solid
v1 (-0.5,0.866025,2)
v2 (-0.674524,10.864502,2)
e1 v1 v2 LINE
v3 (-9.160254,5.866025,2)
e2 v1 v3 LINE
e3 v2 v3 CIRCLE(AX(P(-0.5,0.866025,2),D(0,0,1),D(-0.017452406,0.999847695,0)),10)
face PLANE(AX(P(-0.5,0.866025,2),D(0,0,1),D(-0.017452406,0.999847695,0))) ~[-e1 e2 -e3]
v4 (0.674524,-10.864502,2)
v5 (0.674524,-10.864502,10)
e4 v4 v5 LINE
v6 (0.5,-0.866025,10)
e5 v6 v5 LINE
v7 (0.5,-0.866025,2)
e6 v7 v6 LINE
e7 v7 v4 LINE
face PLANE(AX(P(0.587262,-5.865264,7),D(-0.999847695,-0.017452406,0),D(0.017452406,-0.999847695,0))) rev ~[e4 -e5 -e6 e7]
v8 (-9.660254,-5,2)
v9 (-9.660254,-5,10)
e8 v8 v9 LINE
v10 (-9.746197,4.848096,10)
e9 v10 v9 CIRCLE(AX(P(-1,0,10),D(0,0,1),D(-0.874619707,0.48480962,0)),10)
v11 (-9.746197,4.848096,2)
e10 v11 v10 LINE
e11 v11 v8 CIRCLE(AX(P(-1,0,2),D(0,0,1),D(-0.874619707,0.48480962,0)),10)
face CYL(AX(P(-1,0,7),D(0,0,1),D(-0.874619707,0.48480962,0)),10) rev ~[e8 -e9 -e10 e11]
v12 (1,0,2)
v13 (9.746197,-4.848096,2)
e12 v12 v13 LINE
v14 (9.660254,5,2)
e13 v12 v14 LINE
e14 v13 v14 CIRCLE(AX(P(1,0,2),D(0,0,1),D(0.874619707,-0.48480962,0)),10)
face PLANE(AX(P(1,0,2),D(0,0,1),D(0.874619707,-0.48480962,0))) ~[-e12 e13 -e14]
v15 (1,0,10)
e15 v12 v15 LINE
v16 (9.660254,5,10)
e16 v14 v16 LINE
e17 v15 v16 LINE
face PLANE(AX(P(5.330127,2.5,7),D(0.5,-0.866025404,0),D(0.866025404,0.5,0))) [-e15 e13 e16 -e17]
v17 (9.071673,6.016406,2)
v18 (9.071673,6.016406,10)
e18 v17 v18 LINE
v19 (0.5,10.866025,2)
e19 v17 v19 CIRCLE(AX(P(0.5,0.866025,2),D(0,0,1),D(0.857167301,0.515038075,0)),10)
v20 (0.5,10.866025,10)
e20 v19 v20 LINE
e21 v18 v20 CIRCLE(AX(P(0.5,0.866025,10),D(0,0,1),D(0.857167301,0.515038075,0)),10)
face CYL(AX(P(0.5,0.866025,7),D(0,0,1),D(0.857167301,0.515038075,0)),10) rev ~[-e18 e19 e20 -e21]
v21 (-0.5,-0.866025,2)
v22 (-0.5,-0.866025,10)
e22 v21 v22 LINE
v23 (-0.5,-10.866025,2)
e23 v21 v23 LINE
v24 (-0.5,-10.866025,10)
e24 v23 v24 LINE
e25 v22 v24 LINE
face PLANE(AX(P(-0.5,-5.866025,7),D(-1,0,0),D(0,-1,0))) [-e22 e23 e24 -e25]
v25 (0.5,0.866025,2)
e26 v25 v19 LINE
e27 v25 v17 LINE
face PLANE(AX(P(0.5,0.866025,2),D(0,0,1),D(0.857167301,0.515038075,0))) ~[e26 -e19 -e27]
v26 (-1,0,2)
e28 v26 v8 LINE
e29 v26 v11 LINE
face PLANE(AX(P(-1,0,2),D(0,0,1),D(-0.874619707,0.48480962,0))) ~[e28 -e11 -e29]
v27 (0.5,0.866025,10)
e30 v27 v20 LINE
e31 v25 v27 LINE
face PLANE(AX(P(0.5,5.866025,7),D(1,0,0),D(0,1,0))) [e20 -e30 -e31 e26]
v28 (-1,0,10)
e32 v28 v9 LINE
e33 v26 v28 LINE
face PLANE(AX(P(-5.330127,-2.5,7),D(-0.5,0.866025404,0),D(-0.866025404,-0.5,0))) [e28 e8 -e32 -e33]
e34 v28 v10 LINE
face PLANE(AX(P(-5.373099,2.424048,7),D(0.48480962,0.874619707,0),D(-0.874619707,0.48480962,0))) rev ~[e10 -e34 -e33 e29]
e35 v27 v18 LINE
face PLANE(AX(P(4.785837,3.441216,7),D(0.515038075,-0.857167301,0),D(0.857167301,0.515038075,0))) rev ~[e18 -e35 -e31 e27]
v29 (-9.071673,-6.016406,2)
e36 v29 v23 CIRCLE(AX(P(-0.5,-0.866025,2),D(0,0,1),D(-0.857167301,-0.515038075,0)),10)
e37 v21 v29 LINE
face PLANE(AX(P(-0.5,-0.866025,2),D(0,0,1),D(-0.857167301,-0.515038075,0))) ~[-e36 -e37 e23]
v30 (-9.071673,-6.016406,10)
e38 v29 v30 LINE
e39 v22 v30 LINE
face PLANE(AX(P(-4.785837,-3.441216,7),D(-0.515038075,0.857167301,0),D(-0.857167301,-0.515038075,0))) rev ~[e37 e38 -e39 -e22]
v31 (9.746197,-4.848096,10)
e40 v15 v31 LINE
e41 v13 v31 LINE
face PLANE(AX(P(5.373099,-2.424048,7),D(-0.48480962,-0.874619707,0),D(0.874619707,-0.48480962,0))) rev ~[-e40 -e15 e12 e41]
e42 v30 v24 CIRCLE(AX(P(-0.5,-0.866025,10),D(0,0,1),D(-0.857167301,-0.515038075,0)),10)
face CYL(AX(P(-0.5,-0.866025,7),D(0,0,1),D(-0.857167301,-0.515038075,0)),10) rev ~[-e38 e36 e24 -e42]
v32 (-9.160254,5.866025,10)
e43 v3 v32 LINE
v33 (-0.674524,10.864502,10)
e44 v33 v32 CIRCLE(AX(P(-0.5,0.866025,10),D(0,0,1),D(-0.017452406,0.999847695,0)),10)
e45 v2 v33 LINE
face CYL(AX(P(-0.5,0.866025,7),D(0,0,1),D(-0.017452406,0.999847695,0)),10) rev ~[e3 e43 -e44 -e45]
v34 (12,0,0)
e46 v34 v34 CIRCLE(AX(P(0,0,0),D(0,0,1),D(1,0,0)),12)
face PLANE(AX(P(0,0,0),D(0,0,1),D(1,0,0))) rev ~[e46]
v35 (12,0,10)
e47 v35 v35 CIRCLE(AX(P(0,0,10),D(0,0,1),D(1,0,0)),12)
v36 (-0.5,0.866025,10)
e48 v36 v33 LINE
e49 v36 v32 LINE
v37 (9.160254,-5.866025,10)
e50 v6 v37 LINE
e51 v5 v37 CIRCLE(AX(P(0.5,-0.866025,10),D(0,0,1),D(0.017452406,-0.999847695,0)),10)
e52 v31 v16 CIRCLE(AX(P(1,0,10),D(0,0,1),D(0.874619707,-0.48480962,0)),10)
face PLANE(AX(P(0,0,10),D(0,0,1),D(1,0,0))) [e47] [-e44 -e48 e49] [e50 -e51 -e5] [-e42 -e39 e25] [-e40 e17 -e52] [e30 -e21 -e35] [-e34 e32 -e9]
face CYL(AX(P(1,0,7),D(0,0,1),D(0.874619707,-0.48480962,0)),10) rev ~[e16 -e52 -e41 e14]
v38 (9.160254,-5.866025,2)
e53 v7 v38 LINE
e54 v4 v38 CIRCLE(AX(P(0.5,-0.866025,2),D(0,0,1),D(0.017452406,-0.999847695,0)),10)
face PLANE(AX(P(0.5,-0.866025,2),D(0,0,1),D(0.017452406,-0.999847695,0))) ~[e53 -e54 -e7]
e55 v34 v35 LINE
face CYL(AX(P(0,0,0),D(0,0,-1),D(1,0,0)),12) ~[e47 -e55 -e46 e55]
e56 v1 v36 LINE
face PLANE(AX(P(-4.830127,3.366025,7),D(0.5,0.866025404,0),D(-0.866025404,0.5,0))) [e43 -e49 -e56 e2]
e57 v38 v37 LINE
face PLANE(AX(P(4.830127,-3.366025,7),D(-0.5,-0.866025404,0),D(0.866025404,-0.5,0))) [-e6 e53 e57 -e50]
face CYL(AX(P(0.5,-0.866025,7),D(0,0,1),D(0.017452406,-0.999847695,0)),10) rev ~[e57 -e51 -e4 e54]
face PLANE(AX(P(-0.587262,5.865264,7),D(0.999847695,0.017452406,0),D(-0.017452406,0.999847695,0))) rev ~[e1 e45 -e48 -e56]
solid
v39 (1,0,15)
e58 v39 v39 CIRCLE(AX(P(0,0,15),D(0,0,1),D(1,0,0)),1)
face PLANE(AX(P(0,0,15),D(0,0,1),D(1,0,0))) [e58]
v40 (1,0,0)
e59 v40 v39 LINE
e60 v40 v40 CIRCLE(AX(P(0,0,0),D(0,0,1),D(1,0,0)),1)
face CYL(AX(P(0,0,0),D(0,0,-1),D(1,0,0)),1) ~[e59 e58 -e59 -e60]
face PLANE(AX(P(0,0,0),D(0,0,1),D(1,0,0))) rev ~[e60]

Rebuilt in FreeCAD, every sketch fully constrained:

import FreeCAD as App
import Part
import Sketcher

V = App.Vector
Q = App.Units.Quantity

doc = App.newDocument("Part")
body = doc.addObject("PartDesign::Body", "Body")

sketch1 = body.newObject("Sketcher::SketchObject", "Sketch")
sketch1.AttachmentSupport = (doc.getObject("XY_Plane"), [""])
sketch1.MapMode = "FlatFace"
sketch1.addGeometry(Part.Circle(V(0, 0, 0), V(0, 0, 1), 1), False)
sketch1.addConstraint([
    Sketcher.Constraint("Coincident", 0, 3, -1, 1),
    Sketcher.Constraint("Diameter", 0, Q("2 mm")),
])
pad1 = body.newObject("PartDesign::Pad", "Pad")
pad1.Profile = sketch1
pad1.Length = 15
body2 = doc.addObject("PartDesign::Body", "Body001")

sketch2 = body2.newObject("Sketcher::SketchObject", "Sketch001")
sketch2.AttachmentSupport = (doc.getObject("XZ_Plane001"), [""])
sketch2.MapMode = "FlatFace"
sketch2.addGeometry([
    Part.LineSegment(V(0, 10, 0), V(0, 0, 0)),
    Part.LineSegment(V(0, 0, 0), V(10, 0, 0)),
    Part.LineSegment(V(10, 0, 0), V(10, 10, 0)),
    Part.LineSegment(V(10, 10, 0), V(0, 10, 0)),
], False)
sketch2.addConstraint([
    Sketcher.Constraint("Coincident", 0, 2, 1, 1),
    Sketcher.Constraint("Coincident", 1, 2, 2, 1),
    Sketcher.Constraint("Coincident", 2, 2, 3, 1),
    Sketcher.Constraint("Coincident", 3, 2, 0, 1),
    Sketcher.Constraint("Vertical", 0),
    Sketcher.Constraint("Horizontal", 1),
    Sketcher.Constraint("Vertical", 2),
    Sketcher.Constraint("Horizontal", 3),
    Sketcher.Constraint("Coincident", 0, 2, -1, 1),
    Sketcher.Constraint("Equal", 3, 0),
    Sketcher.Constraint("DistanceX", 1, 1, 1, 2, Q("10 mm")),
])
revolution = body2.newObject("PartDesign::Revolution", "Revolution")
revolution.Profile = sketch2
revolution.ReferenceAxis = (sketch2, ["V_Axis"])
revolution.Angle = 59
body3 = doc.addObject("PartDesign::Body", "Body002")
doc.recompute()

body2.Placement = App.Placement(V(1, 0, 2), App.Rotation(V(0, 0, 1), 331))
boolean = body3.newObject("PartDesign::Boolean", "Boolean")
boolean.Type = "Fuse"
boolean.addObjects([body2])
body4 = doc.addObject("PartDesign::Body", "Body003")
body4.AllowCompound = True
doc.recompute()

body4.BaseFeature = body3
doc.recompute()

body5 = doc.addObject("PartDesign::Body", "Body004")
body5.BaseFeature = body3
body5.Placement = App.Placement(V(0, 0, 0), App.Rotation(V(0, 0, 1), 60))
boolean2 = body4.newObject("PartDesign::Boolean", "Boolean001")
boolean2.Type = "Fuse"
boolean2.addObjects([body5])
doc.recompute()

body6 = doc.addObject("PartDesign::Body", "Body005")
body6.BaseFeature = body3
body6.Placement = App.Placement(V(0, 0, 0), App.Rotation(V(0, 0, 1), 120))
boolean3 = body4.newObject("PartDesign::Boolean", "Boolean002")
boolean3.Type = "Fuse"
boolean3.addObjects([body6])
doc.recompute()

body7 = doc.addObject("PartDesign::Body", "Body006")
body7.BaseFeature = body3
body7.Placement = App.Placement(V(0, 0, 0), App.Rotation(V(0, 0, 1), 180))
boolean4 = body4.newObject("PartDesign::Boolean", "Boolean003")
boolean4.Type = "Fuse"
boolean4.addObjects([body7])
doc.recompute()

body8 = doc.addObject("PartDesign::Body", "Body007")
body8.BaseFeature = body3
body8.Placement = App.Placement(V(0, 0, 0), App.Rotation(V(0, 0, 1), 240))
boolean5 = body4.newObject("PartDesign::Boolean", "Boolean004")
boolean5.Type = "Fuse"
boolean5.addObjects([body8])
doc.recompute()

body3.Placement = App.Placement(V(0, 0, 0), App.Rotation(V(0, 0, 1), 300))
boolean6 = body4.newObject("PartDesign::Boolean", "Boolean005")
boolean6.Type = "Fuse"
boolean6.addObjects([body3])
body9 = doc.addObject("PartDesign::Body", "Body008")

sketch3 = body9.newObject("Sketcher::SketchObject", "Sketch002")
sketch3.AttachmentSupport = (doc.getObject("XY_Plane008"), [""])
sketch3.MapMode = "FlatFace"
sketch3.addGeometry(Part.Circle(V(0, 0, 0), V(0, 0, 1), 12), False)
sketch3.addConstraint([
    Sketcher.Constraint("Coincident", 0, 3, -1, 1),
    Sketcher.Constraint("Diameter", 0, Q("24 mm")),
])
pad2 = body9.newObject("PartDesign::Pad", "Pad001")
pad2.Profile = sketch3
pad2.Length = 10
doc.recompute()

boolean7 = body9.newObject("PartDesign::Boolean", "Boolean006")
boolean7.Type = "Cut"
boolean7.addObjects([body4])

doc.recompute()
